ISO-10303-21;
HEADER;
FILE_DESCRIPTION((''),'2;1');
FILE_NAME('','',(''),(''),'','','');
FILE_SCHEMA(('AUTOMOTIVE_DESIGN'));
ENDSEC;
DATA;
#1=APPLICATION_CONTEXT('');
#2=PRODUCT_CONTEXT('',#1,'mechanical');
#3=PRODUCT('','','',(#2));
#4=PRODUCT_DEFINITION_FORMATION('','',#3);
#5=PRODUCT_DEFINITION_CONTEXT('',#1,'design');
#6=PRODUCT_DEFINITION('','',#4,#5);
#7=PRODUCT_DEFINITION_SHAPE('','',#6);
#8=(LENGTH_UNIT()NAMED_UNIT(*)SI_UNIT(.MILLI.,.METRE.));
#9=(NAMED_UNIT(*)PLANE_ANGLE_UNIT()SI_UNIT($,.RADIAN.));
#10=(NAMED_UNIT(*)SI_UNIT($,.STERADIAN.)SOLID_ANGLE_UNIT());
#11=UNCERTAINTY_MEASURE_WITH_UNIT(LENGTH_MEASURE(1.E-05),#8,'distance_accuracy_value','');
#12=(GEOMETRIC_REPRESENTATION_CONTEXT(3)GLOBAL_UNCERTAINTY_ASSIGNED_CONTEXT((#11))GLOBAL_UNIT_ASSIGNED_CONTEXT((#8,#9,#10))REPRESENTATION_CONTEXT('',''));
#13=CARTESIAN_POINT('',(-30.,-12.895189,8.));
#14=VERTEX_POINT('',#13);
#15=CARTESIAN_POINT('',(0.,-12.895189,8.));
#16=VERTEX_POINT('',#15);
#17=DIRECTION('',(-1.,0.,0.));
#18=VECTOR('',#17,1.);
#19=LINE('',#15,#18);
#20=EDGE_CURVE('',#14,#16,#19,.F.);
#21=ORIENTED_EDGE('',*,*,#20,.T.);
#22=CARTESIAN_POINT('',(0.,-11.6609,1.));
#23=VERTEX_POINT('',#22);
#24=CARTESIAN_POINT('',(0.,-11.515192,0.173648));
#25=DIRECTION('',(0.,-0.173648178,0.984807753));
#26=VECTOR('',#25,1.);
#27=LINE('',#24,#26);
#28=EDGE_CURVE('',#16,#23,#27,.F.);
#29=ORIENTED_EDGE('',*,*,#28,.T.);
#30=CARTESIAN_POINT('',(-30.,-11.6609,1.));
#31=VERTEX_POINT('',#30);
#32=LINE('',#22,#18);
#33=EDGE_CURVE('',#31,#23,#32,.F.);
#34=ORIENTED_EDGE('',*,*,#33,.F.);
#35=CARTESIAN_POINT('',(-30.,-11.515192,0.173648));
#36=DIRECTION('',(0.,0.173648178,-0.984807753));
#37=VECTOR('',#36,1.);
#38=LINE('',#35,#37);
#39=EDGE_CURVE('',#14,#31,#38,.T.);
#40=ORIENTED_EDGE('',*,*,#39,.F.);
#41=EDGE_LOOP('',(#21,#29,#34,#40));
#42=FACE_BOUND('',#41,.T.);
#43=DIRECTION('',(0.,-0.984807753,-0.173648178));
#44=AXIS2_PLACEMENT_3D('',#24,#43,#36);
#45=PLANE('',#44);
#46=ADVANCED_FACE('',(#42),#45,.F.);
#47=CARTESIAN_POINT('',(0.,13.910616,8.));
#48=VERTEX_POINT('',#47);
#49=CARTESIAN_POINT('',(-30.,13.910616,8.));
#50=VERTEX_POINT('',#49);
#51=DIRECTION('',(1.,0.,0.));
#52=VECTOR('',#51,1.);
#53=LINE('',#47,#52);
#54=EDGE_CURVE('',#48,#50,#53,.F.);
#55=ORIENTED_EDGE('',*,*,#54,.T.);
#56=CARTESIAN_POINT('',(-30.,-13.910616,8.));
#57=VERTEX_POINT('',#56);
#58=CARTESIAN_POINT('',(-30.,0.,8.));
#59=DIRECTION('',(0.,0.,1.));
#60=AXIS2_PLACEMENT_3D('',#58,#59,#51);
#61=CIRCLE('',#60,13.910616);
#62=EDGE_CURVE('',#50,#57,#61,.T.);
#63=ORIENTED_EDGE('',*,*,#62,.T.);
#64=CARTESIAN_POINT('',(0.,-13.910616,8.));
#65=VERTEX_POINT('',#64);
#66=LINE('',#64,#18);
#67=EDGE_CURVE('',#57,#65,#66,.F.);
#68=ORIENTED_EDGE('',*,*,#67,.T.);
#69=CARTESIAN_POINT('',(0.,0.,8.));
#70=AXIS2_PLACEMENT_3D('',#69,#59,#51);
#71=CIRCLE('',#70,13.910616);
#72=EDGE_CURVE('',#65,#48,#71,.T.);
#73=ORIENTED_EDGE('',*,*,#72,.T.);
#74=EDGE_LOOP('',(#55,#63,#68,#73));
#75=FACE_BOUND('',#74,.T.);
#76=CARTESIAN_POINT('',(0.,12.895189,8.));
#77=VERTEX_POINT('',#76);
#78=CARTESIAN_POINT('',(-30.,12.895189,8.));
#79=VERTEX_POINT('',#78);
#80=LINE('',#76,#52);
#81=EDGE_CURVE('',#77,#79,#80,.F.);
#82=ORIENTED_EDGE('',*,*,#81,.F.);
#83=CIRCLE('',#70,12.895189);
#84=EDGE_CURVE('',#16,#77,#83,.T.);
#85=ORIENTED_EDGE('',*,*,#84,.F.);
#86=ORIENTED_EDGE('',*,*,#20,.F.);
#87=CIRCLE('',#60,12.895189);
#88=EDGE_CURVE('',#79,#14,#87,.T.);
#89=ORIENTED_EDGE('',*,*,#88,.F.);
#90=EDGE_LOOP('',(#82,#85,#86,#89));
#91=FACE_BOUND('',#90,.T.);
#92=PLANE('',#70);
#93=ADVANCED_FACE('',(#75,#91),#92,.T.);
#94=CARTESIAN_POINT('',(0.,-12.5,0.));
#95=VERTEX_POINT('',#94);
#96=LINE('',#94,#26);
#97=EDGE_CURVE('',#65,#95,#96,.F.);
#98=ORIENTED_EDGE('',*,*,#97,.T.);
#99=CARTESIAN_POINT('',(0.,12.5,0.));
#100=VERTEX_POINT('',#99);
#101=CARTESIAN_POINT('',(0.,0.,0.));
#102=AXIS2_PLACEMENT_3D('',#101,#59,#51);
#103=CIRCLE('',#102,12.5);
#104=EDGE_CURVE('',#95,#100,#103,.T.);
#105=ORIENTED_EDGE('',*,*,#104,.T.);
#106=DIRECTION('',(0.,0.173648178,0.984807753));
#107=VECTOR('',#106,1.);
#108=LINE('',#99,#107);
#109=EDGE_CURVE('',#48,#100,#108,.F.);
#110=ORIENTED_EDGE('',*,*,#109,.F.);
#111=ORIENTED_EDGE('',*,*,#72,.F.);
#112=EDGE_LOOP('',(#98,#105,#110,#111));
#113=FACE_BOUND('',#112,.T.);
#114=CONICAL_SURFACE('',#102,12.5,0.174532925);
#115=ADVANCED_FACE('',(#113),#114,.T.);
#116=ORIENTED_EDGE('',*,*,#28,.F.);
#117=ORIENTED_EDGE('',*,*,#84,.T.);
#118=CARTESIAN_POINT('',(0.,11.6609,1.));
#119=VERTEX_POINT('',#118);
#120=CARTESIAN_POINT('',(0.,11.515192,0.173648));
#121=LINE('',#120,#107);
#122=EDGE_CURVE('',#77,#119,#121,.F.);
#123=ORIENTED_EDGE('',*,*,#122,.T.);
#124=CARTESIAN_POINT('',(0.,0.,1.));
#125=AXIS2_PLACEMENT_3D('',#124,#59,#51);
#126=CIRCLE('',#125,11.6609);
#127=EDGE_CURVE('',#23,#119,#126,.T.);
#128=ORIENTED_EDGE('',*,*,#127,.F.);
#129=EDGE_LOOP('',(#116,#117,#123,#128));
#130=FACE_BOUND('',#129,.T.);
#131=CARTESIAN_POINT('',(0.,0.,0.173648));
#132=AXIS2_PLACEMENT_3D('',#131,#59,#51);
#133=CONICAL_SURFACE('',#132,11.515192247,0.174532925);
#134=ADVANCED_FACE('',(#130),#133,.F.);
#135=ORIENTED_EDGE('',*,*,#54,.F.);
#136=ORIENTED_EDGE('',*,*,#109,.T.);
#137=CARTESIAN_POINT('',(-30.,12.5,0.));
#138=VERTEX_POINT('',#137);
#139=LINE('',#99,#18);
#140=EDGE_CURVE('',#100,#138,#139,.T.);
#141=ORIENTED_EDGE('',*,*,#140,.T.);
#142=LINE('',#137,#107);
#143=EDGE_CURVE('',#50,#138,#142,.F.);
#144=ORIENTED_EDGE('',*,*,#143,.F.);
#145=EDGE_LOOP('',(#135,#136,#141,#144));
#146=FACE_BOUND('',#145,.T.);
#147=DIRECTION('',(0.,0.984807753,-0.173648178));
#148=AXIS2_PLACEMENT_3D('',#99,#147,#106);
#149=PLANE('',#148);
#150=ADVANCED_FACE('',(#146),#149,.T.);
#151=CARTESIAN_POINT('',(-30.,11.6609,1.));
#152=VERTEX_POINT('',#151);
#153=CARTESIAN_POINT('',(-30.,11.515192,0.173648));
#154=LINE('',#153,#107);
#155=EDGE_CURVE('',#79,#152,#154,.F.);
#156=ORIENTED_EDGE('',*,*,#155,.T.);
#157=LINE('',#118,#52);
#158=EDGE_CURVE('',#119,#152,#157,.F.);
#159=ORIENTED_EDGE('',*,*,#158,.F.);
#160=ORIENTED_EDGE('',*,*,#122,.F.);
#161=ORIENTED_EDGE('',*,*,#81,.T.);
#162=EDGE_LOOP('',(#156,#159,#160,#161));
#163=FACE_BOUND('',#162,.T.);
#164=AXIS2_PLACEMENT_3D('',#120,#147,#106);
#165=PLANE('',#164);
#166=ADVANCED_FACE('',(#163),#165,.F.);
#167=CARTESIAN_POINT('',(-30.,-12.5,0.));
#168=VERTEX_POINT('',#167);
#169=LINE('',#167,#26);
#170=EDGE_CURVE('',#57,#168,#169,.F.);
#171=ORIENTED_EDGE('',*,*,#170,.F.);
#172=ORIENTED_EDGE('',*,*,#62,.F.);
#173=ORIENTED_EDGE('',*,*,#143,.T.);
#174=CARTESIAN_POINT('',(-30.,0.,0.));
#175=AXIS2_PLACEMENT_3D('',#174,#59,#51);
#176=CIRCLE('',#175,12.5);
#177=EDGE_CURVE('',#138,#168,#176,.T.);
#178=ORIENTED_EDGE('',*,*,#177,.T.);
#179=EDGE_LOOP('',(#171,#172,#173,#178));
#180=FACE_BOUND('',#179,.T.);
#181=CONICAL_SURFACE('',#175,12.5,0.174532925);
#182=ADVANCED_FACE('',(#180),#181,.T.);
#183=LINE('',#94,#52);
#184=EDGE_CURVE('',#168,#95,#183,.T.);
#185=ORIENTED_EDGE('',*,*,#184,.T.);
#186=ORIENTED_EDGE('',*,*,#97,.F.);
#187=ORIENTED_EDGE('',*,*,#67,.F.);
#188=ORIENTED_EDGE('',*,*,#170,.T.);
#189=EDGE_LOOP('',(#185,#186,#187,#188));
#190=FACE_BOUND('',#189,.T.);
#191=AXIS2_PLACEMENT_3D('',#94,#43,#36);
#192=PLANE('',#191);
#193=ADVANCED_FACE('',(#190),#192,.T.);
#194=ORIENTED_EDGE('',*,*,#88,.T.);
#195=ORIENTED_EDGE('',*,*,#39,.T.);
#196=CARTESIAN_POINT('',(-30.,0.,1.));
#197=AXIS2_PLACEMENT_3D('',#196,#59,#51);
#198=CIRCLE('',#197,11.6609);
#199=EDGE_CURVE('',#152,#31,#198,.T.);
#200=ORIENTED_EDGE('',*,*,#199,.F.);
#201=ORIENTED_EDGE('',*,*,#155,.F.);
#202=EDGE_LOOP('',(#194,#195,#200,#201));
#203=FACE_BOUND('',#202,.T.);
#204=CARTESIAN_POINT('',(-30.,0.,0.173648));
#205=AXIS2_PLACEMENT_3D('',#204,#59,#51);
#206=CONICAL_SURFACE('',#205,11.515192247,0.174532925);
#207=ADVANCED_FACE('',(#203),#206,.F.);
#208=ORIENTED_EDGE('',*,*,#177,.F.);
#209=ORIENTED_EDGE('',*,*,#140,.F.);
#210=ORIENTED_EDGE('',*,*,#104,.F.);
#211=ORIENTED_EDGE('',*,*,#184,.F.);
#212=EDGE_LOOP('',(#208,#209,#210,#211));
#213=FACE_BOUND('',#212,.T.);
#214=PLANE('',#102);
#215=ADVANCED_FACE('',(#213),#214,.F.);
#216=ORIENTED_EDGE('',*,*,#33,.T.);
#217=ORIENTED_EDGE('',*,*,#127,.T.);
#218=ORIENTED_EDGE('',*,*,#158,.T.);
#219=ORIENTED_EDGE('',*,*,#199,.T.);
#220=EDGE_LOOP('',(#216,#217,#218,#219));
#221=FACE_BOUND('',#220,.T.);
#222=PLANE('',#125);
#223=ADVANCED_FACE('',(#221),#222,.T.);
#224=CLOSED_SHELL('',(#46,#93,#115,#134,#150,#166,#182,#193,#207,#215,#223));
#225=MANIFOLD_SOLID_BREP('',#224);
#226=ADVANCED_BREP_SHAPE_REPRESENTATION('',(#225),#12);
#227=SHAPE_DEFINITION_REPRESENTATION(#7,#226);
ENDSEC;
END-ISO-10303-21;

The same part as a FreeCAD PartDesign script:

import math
import FreeCAD as App
import Part
import Sketcher

V = App.Vector
Q = App.Units.Quantity


def faces_at(feature, points):
    """Names of the faces that lie closest to the given points."""
    faces = feature.Shape.Faces
    near = lambda p: min(range(len(faces)), key=lambda i: faces[i].distToShape(Part.Vertex(*p))[0])
    return sorted({f"Face{near(p) + 1}" for p in points})

doc = App.newDocument("Part")
body = doc.addObject("PartDesign::Body", "Body")

sketch1 = body.newObject("Sketcher::SketchObject", "Sketch")
sketch1.AttachmentSupport = (doc.getObject("XY_Plane"), [""])
sketch1.MapMode = "FlatFace"
sketch1.addGeometry([
    Part.ArcOfCircle(Part.Circle(V(0, 0, 0), V(0, 0, 1), 12), math.radians(-90), math.radians(90)),
    Part.LineSegment(V(0, 12, 0), V(-30, 12, 0)),
    Part.ArcOfCircle(Part.Circle(V(-30, 0, 0), V(0, 0, 1), 12), math.radians(90), math.radians(270)),
    Part.LineSegment(V(-30, -12, 0), V(0, -12, 0)),
], False)
sketch1.addConstraint([
    Sketcher.Constraint("Tangent", 0, 2, 1, 1),
    Sketcher.Constraint("Tangent", 1, 2, 2, 1),
    Sketcher.Constraint("Tangent", 2, 2, 3, 1),
    Sketcher.Constraint("Tangent", 3, 2, 0, 1),
    Sketcher.Constraint("Horizontal", 1),
    Sketcher.Constraint("Horizontal", 3),
    Sketcher.Constraint("Coincident", 0, 3, -1, 1),
    Sketcher.Constraint("Radius", 0, Q("12.5 mm")),
    Sketcher.Constraint("DistanceX", 1, 2, 1, 1, Q("30 mm")),
])
pad1 = body.newObject("PartDesign::Pad", "Pad")
pad1.Profile = sketch1
pad1.Length = 8
doc.recompute()

draft = body.newObject("PartDesign::Draft", "Draft")
draft.Base = (pad1, faces_at(pad1, [
    (-15, -12.5, 4),
    (12.5, 0, 4),
    (-15, 12.5, 4),
    (-42.5, 0, 4),
]))
draft.NeutralPlane = (doc.getObject("XY_Plane"), [""])
draft.Angle = 10
draft.Reversed = True
doc.recompute()

thickness = body.newObject("PartDesign::Thickness", "Thickness")
thickness.Base = (draft, faces_at(draft, [(-15, 0, 8)]))
thickness.Value = 1
thickness.Reversed = True
thickness.Join = "Intersection"

doc.recompute()
